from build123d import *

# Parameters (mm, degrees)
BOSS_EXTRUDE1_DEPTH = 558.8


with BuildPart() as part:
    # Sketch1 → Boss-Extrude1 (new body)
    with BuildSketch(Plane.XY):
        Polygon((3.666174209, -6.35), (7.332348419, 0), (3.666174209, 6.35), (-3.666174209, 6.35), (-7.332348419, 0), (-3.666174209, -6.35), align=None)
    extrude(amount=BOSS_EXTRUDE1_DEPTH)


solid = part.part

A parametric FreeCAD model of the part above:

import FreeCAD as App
import Part
import Sketcher
from FreeCAD import Vector
Q = App.Units.Quantity

doc = App.newDocument("Part")
params = doc.addObject("Spreadsheet::Sheet", "Params")
for row, (alias, value) in enumerate([
    ("pad1_length", "22 in"),
], start=1):
    params.set(f"A{row}", alias)
    params.set(f"B{row}", "=" + value)
    params.setAlias(f"B{row}", alias)

body = doc.addObject("PartDesign::Body", "Body")

sketch1 = body.newObject("Sketcher::SketchObject", "Sketch")
sketch1.AttachmentSupport = (doc.getObject("XY_Plane"), [""])
sketch1.MapMode = "FlatFace"
sketch1.addGeometry([
    Part.LineSegment(Vector(3.666174, -6.35, 0), Vector(7.332348, 0, 0)),
    Part.LineSegment(Vector(7.332348, 0, 0), Vector(3.666174, 6.35, 0)),
    Part.LineSegment(Vector(3.666174, 6.35, 0), Vector(-3.666174, 6.35, 0)),
    Part.LineSegment(Vector(-3.666174, 6.35, 0), Vector(-7.332348, 0, 0)),
    Part.LineSegment(Vector(-7.332348, 0, 0), Vector(-3.666174, -6.35, 0)),
    Part.LineSegment(Vector(-3.666174, -6.35, 0), Vector(3.666174, -6.35, 0)),
], False)
sketch1.addConstraint([
    Sketcher.Constraint("Coincident", 0, 2, 1, 1),
    Sketcher.Constraint("Coincident", 1, 2, 2, 1),
    Sketcher.Constraint("Coincident", 2, 2, 3, 1),
    Sketcher.Constraint("Coincident", 3, 2, 4, 1),
    Sketcher.Constraint("Coincident", 4, 2, 5, 1),
    Sketcher.Constraint("Coincident", 5, 2, 0, 1),
    Sketcher.Constraint("Horizontal", 2),
    Sketcher.Constraint("Horizontal", 5),
    Sketcher.Constraint("Symmetric", 0, 2, 3, 2, -1, 1),
    Sketcher.Constraint("Symmetric", 1, 2, 4, 2, -1, 1),
    Sketcher.Constraint("PointOnObject", 0, 2, -1),
    Sketcher.Constraint("Parallel", 0, 3),
    Sketcher.Constraint("Vertical", 2, 2, 4, 2),
    Sketcher.Constraint("Angle", 0, Q("60 deg")),
    Sketcher.Constraint("DistanceY", 4, 2, 2, 2, Q("0.5 in")),
    Sketcher.Constraint("DistanceX", 2, 2, 2, 1, Q("7.332348 mm")),
])
pad1 = body.newObject("PartDesign::Pad", "Pad")
pad1.Profile = sketch1
pad1.setExpression("Length", "Params.pad1_length")

doc.recompute()
